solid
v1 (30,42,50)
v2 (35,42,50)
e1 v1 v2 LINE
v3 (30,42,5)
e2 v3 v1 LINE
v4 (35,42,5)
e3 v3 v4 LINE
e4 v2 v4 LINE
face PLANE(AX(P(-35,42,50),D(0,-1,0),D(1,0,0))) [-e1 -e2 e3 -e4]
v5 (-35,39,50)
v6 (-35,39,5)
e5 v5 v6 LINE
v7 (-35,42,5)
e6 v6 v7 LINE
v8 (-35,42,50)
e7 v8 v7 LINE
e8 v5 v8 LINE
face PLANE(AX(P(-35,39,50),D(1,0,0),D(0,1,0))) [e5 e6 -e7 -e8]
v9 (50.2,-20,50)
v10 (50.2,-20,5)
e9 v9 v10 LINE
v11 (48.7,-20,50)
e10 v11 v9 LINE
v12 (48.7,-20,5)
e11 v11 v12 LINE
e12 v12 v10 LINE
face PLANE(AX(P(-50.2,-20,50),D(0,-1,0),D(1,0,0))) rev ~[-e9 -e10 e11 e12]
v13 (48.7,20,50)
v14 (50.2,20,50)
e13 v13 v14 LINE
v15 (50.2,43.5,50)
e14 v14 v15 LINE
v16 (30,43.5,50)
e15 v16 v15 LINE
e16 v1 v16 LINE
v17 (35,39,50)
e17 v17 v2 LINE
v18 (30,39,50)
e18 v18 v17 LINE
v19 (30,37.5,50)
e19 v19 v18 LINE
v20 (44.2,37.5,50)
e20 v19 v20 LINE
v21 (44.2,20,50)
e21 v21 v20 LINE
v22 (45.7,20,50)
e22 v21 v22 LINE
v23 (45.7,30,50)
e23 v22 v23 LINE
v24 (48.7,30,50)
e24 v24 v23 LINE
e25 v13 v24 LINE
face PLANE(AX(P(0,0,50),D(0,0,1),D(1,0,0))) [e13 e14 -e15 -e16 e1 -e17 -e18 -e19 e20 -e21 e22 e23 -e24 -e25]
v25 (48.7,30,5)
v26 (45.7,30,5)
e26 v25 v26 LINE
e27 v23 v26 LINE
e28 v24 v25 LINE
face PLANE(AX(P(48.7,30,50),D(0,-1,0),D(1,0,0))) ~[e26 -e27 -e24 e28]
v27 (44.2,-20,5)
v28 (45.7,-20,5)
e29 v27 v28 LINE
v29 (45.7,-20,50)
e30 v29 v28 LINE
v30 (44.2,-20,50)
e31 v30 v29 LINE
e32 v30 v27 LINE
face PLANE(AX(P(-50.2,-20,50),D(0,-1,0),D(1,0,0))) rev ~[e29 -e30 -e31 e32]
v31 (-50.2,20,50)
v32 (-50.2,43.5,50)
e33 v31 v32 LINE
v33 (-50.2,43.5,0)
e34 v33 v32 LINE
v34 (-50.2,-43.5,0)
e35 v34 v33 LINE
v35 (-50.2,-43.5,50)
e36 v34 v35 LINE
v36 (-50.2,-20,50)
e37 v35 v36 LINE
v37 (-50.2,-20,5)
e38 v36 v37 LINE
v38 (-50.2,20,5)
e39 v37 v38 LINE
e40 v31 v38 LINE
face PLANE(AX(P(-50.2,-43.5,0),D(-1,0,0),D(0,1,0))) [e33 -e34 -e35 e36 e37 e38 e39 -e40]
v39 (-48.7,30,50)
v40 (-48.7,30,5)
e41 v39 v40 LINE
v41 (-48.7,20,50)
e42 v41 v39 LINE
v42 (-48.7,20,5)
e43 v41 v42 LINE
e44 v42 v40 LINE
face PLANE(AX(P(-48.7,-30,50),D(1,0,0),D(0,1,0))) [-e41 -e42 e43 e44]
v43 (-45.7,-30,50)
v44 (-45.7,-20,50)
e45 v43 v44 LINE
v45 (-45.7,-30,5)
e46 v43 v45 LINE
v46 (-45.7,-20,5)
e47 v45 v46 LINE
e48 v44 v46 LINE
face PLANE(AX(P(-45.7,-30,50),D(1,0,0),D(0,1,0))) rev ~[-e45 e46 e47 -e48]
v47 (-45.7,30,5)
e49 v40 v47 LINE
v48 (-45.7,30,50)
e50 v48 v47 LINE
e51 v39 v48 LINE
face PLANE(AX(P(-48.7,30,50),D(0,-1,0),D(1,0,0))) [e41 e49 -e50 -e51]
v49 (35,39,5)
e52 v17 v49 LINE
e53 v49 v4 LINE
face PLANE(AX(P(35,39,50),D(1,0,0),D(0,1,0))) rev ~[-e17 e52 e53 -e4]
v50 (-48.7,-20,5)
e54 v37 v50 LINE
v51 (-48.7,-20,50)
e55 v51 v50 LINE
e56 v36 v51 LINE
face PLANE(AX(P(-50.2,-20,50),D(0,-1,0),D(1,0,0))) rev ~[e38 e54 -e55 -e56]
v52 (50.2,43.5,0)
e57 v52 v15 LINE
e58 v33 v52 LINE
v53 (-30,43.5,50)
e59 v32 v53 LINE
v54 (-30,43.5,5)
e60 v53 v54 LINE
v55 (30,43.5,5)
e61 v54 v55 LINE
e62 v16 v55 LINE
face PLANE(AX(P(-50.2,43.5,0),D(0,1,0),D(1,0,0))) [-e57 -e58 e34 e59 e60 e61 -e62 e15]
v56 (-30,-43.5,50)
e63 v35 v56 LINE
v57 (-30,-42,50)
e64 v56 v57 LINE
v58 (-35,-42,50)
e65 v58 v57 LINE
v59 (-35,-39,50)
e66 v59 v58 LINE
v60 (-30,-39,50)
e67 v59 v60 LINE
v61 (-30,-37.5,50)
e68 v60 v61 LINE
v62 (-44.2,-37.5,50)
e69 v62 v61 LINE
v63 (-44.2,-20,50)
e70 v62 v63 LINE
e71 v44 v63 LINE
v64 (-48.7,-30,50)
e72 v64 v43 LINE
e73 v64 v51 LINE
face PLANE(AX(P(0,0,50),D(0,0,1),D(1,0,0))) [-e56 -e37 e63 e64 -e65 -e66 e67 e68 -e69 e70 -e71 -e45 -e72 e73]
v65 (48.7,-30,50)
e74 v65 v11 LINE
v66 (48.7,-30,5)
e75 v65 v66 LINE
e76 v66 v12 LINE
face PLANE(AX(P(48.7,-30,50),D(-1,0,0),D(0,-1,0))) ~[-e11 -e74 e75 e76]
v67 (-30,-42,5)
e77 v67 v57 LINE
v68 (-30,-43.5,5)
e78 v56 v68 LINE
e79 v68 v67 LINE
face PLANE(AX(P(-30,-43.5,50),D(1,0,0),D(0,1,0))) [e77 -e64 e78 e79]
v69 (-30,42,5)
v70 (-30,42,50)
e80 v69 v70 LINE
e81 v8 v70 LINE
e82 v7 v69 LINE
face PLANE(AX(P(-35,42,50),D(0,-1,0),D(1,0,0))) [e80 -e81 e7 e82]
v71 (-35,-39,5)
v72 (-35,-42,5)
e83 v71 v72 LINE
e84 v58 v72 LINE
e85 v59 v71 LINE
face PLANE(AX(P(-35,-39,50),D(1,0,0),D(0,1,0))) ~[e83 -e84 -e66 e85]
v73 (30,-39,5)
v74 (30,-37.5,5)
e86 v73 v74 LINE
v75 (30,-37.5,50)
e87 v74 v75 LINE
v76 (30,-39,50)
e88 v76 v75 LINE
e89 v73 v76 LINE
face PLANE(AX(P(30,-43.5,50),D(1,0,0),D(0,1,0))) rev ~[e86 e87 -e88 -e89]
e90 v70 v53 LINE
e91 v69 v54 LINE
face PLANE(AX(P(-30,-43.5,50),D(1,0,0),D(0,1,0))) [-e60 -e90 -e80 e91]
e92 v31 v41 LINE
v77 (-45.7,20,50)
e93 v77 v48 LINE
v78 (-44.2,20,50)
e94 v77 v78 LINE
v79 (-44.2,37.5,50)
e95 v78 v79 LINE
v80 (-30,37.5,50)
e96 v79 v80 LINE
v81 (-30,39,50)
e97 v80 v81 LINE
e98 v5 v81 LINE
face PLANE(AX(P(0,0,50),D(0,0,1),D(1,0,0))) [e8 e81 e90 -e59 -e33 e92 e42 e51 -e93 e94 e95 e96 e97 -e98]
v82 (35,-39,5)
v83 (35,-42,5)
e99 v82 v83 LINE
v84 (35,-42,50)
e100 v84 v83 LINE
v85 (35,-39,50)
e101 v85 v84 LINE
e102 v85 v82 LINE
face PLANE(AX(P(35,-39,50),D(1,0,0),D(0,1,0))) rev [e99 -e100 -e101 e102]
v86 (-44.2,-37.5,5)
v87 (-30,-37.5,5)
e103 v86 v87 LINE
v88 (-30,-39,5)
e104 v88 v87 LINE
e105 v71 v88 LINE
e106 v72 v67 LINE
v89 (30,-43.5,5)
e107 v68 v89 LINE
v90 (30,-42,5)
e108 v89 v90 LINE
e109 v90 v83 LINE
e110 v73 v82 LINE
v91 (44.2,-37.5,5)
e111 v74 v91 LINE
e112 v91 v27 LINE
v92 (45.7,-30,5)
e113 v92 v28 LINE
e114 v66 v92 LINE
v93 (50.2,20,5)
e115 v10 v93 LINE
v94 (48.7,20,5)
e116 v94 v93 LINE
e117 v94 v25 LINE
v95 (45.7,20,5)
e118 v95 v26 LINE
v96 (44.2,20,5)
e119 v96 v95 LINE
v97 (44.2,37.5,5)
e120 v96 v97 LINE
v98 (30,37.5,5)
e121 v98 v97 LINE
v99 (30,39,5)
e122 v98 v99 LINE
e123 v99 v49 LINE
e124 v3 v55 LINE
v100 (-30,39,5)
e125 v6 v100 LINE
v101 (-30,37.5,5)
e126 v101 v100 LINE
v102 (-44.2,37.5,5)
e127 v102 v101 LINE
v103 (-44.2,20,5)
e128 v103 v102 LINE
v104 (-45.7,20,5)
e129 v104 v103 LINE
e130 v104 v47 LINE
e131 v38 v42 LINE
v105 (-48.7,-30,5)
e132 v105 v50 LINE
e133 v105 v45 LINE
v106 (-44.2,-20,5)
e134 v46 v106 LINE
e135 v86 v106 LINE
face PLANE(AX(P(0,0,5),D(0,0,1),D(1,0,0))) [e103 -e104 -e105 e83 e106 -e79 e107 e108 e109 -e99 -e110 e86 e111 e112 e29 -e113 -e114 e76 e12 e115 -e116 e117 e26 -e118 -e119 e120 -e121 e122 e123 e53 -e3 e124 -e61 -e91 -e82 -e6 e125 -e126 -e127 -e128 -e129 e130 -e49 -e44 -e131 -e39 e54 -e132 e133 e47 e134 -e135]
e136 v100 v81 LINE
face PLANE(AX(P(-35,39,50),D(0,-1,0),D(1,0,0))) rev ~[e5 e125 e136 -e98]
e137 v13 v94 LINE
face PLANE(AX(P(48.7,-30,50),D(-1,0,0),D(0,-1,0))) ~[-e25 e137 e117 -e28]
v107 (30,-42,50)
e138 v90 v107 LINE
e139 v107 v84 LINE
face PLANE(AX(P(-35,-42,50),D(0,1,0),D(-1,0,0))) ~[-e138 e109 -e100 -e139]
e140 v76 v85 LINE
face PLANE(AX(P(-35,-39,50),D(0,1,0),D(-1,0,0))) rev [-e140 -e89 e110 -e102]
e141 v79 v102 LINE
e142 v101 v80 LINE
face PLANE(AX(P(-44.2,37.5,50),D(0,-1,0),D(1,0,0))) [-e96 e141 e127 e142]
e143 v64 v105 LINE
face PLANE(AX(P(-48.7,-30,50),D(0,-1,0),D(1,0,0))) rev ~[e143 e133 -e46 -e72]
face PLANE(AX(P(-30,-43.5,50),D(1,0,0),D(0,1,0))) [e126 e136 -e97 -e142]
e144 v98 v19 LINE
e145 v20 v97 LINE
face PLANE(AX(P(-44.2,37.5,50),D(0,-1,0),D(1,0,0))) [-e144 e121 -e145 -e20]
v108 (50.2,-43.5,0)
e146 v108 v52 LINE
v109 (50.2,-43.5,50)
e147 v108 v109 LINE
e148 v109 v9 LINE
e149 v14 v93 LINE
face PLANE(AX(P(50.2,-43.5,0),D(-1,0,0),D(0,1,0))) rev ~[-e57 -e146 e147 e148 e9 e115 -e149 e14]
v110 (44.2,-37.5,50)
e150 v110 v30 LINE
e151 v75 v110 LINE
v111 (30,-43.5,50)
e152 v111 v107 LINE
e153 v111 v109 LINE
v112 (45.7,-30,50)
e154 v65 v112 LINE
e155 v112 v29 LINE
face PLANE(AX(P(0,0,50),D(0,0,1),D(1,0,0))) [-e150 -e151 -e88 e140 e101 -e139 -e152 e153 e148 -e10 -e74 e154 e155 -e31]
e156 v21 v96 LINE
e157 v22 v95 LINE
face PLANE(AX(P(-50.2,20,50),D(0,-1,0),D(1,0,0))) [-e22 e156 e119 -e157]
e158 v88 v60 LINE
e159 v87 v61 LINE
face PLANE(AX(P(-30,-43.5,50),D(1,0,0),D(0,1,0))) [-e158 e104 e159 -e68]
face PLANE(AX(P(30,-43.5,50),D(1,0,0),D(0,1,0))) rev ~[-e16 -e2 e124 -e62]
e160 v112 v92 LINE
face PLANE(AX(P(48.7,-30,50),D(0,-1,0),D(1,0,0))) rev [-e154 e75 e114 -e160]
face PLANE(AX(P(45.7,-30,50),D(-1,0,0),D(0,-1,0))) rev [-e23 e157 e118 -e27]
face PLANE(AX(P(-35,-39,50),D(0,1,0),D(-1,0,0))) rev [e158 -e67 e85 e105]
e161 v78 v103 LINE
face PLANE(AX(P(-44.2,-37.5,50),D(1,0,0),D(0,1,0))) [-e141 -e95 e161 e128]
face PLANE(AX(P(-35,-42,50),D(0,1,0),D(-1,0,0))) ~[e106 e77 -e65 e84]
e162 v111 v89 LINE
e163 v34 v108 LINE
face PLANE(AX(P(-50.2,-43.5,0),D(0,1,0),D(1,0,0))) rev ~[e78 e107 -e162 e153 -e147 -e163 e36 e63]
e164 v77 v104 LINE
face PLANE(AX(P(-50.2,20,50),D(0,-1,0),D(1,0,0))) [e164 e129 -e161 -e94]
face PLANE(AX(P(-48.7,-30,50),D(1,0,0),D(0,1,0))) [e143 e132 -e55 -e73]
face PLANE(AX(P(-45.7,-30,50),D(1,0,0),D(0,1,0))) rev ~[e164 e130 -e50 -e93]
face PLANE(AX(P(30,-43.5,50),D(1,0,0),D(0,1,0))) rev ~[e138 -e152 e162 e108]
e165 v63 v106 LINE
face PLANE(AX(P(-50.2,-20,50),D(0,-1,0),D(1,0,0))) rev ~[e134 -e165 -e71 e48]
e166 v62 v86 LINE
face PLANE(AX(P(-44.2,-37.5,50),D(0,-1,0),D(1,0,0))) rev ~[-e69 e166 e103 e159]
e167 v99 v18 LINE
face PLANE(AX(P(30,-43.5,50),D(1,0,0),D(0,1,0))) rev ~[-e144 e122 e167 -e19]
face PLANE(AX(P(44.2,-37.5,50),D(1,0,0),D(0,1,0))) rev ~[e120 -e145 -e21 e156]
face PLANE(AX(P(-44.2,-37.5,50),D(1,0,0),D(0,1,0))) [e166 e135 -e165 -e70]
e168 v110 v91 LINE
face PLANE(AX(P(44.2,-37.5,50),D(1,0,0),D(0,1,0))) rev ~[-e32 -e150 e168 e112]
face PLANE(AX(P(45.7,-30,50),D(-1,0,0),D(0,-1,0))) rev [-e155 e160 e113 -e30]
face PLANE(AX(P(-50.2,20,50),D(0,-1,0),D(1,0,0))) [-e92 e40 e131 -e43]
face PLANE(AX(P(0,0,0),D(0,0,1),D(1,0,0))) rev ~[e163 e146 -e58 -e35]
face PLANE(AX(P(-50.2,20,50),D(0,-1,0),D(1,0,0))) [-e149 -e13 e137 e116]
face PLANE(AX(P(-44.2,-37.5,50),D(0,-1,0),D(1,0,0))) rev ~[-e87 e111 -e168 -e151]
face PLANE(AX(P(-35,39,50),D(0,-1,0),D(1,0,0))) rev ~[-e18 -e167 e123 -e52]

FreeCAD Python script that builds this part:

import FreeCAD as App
import Part
import Sketcher
from FreeCAD import Vector
Q = App.Units.Quantity


def add_polygon(sketch, points):
    """Adds a closed chain of lines whose ends are joined by coincident constraints."""
    first, n = sketch.GeometryCount, len(points)
    for a, b in zip(points, points[1:] + points[:1]):
        sketch.addGeometry(Part.LineSegment(App.Vector(*a, 0), App.Vector(*b, 0)), False)
    for i in range(n):
        sketch.addConstraint(Sketcher.Constraint("Coincident", first + i, 2, first + (i + 1) % n, 1))

doc = App.newDocument("Part")
params = doc.addObject("Spreadsheet::Sheet", "Params")
for row, (alias, value) in enumerate([
    ("sketch1_height", "87 mm"),
    ("sketch1_width", "100.4 mm"),
    ("pad1_length", "50 mm"),
    ("sketch2_height", "75 mm"),
    ("sketch2_width", "88.4 mm"),
    ("pocket1_length", "45 mm"),
    ("sketch3_width", "3 mm"),
    ("sketch3_height", "60 mm"),
    ("pocket2_length", "45 mm"),
    ("sketch4_width", "70 mm"),
    ("sketch4_height", "3 mm"),
    ("pocket3_length", "45 mm"),
    ("sketch5_height", "40 mm"),
    ("sketch5_width", "100.4 mm"),
    ("pocket4_length", "45 mm"),
    ("sketch6_width", "60 mm"),
    ("sketch6_height", "87 mm"),
    ("pocket5_length", "45 mm"),
], start=1):
    params.set(f"A{row}", alias)
    params.set(f"B{row}", "=" + value)
    params.setAlias(f"B{row}", alias)

body = doc.addObject("PartDesign::Body", "Body")

# Sketch on XY plane
sketch1 = body.newObject("Sketcher::SketchObject", "Sketch")
sketch1.AttachmentSupport = (doc.getObject("XY_Plane"), [""])
sketch1.MapMode = "FlatFace"
add_polygon(sketch1, [(-50, 44), (-50, -44), (50, -44), (50, 44)])  # lines 0-3
sketch1.addConstraint([
    Sketcher.Constraint("Vertical", 0),
    Sketcher.Constraint("Horizontal", 1),
    Sketcher.Constraint("Vertical", 2),
    Sketcher.Constraint("Horizontal", 3),
    Sketcher.Constraint("Symmetric", 0, 2, 2, 2, -1, 1),
    Sketcher.Constraint("DistanceY", 0, 2, 0, 1, Q("87 mm")),
    Sketcher.Constraint("DistanceX", 1, 1, 1, 2, Q("100.4 mm")),
])
sketch1.setExpression("Constraints[9]", "Params.sketch1_height")
sketch1.setExpression("Constraints[10]", "Params.sketch1_width")
pad1 = body.newObject("PartDesign::Pad", "Pad")
pad1.Profile = sketch1
pad1.setExpression("Length", "Params.pad1_length")

# Sketch on XY plane
sketch2 = body.newObject("Sketcher::SketchObject", "Sketch001")
sketch2.AttachmentSupport = (doc.getObject("XY_Plane"), [""])
sketch2.MapMode = "FlatFace"
sketch2.AttachmentOffset = App.Placement(Vector(0, 0, 50), App.Rotation())
add_polygon(sketch2, [(-44, 38), (-44, -38), (44, -38), (44, 38)])  # lines 0-3
sketch2.addConstraint([
    Sketcher.Constraint("Vertical", 0),
    Sketcher.Constraint("Horizontal", 1),
    Sketcher.Constraint("Vertical", 2),
    Sketcher.Constraint("Horizontal", 3),
    Sketcher.Constraint("Symmetric", 0, 2, 2, 2, -1, 1),
    Sketcher.Constraint("DistanceY", 0, 2, 0, 1, Q("75 mm")),
    Sketcher.Constraint("DistanceX", 1, 1, 1, 2, Q("88.4 mm")),
])
sketch2.setExpression("Constraints[9]", "Params.sketch2_height")
sketch2.setExpression("Constraints[10]", "Params.sketch2_width")
pocket1 = body.newObject("PartDesign::Pocket", "Pocket")
pocket1.Profile = sketch2
pocket1.setExpression("Length", "Params.pocket1_length")

# Sketch on XY plane
sketch3 = body.newObject("Sketcher::SketchObject", "Sketch002")
sketch3.AttachmentSupport = (doc.getObject("XY_Plane"), [""])
sketch3.MapMode = "FlatFace"
sketch3.AttachmentOffset = App.Placement(Vector(0, 0, 50), App.Rotation())
add_polygon(sketch3, [(-48.7, 30), (-48.7, -30), (-45.7, -30), (-45.7, 30)])  # lines 0-3
sketch3.addConstraint([
    Sketcher.Constraint("Vertical", 0),
    Sketcher.Constraint("Horizontal", 1),
    Sketcher.Constraint("Vertical", 2),
    Sketcher.Constraint("Horizontal", 3),
    Sketcher.Constraint("DistanceX", 1, 1, 1, 2, Q("3 mm")),
    Sketcher.Constraint("DistanceY", 0, 2, 0, 1, Q("60 mm")),
    Sketcher.Constraint("DistanceY", 0, 2, -1, 1, Q("30 mm")),
    Sketcher.Constraint("DistanceX", 0, 2, -1, 1, Q("48.7 mm")),
])
sketch3.setExpression("Constraints[8]", "Params.sketch3_width")
sketch3.setExpression("Constraints[9]", "Params.sketch3_height")
pocket2 = body.newObject("PartDesign::Pocket", "Pocket001")
pocket2.Profile = sketch3
pocket2.setExpression("Length", "Params.pocket2_length")
doc.recompute()

mirrored = body.newObject("PartDesign::Mirrored", "Mirrored")
mirrored.Originals = [pocket2]
mirrored.MirrorPlane = (doc.getObject("YZ_Plane"), [""])
body.Tip = mirrored

# Sketch on XY plane
sketch4 = body.newObject("Sketcher::SketchObject", "Sketch003")
sketch4.AttachmentSupport = (doc.getObject("XY_Plane"), [""])
sketch4.MapMode = "FlatFace"
sketch4.AttachmentOffset = App.Placement(Vector(0, 0, 50), App.Rotation())
add_polygon(sketch4, [(-35, 42), (-35, 39), (35, 39), (35, 42)])  # lines 0-3
sketch4.addConstraint([
    Sketcher.Constraint("Vertical", 0),
    Sketcher.Constraint("Horizontal", 1),
    Sketcher.Constraint("Vertical", 2),
    Sketcher.Constraint("Horizontal", 3),
    Sketcher.Constraint("DistanceX", 1, 1, 1, 2, Q("70 mm")),
    Sketcher.Constraint("DistanceY", 0, 2, 0, 1, Q("3 mm")),
    Sketcher.Constraint("DistanceX", 0, 2, -1, 1, Q("35 mm")),
    Sketcher.Constraint("DistanceY", -1, 1, 0, 2, Q("39 mm")),
])
sketch4.setExpression("Constraints[8]", "Params.sketch4_width")
sketch4.setExpression("Constraints[9]", "Params.sketch4_height")
pocket3 = body.newObject("PartDesign::Pocket", "Pocket002")
pocket3.Profile = sketch4
pocket3.setExpression("Length", "Params.pocket3_length")
doc.recompute()

mirrored2 = body.newObject("PartDesign::Mirrored", "Mirrored001")
mirrored2.Originals = [pocket3]
mirrored2.MirrorPlane = (doc.getObject("XZ_Plane"), [""])
body.Tip = mirrored2

# Sketch on XY plane
sketch5 = body.newObject("Sketcher::SketchObject", "Sketch004")
sketch5.AttachmentSupport = (doc.getObject("XY_Plane"), [""])
sketch5.MapMode = "FlatFace"
sketch5.AttachmentOffset = App.Placement(Vector(0, 0, 50), App.Rotation())
add_polygon(sketch5, [(-50, 20), (-50, -20), (50, -20), (50, 20)])  # lines 0-3
sketch5.addConstraint([
    Sketcher.Constraint("Vertical", 0),
    Sketcher.Constraint("Horizontal", 1),
    Sketcher.Constraint("Vertical", 2),
    Sketcher.Constraint("Horizontal", 3),
    Sketcher.Constraint("Symmetric", 0, 2, 2, 2, -1, 1),
    Sketcher.Constraint("DistanceY", 0, 2, 0, 1, Q("40 mm")),
    Sketcher.Constraint("DistanceX", 1, 1, 1, 2, Q("100.4 mm")),
])
sketch5.setExpression("Constraints[9]", "Params.sketch5_height")
sketch5.setExpression("Constraints[10]", "Params.sketch5_width")
pocket4 = body.newObject("PartDesign::Pocket", "Pocket003")
pocket4.Profile = sketch5
pocket4.setExpression("Length", "Params.pocket4_length")

# Sketch on XY plane
sketch6 = body.newObject("Sketcher::SketchObject", "Sketch005")
sketch6.AttachmentSupport = (doc.getObject("XY_Plane"), [""])
sketch6.MapMode = "FlatFace"
sketch6.AttachmentOffset = App.Placement(Vector(0, 0, 50), App.Rotation())
add_polygon(sketch6, [(-30, 44), (-30, -44), (30, -44), (30, 44)])  # lines 0-3
sketch6.addConstraint([
    Sketcher.Constraint("Vertical", 0),
    Sketcher.Constraint("Horizontal", 1),
    Sketcher.Constraint("Vertical", 2),
    Sketcher.Constraint("Horizontal", 3),
    Sketcher.Constraint("Symmetric", 0, 2, 2, 2, -1, 1),
    Sketcher.Constraint("DistanceX", 1, 1, 1, 2, Q("60 mm")),
    Sketcher.Constraint("DistanceY", 0, 2, 0, 1, Q("87 mm")),
])
sketch6.setExpression("Constraints[9]", "Params.sketch6_width")
sketch6.setExpression("Constraints[10]", "Params.sketch6_height")
pocket5 = body.newObject("PartDesign::Pocket", "Pocket004")
pocket5.Profile = sketch6
pocket5.setExpression("Length", "Params.pocket5_length")

doc.recompute()
